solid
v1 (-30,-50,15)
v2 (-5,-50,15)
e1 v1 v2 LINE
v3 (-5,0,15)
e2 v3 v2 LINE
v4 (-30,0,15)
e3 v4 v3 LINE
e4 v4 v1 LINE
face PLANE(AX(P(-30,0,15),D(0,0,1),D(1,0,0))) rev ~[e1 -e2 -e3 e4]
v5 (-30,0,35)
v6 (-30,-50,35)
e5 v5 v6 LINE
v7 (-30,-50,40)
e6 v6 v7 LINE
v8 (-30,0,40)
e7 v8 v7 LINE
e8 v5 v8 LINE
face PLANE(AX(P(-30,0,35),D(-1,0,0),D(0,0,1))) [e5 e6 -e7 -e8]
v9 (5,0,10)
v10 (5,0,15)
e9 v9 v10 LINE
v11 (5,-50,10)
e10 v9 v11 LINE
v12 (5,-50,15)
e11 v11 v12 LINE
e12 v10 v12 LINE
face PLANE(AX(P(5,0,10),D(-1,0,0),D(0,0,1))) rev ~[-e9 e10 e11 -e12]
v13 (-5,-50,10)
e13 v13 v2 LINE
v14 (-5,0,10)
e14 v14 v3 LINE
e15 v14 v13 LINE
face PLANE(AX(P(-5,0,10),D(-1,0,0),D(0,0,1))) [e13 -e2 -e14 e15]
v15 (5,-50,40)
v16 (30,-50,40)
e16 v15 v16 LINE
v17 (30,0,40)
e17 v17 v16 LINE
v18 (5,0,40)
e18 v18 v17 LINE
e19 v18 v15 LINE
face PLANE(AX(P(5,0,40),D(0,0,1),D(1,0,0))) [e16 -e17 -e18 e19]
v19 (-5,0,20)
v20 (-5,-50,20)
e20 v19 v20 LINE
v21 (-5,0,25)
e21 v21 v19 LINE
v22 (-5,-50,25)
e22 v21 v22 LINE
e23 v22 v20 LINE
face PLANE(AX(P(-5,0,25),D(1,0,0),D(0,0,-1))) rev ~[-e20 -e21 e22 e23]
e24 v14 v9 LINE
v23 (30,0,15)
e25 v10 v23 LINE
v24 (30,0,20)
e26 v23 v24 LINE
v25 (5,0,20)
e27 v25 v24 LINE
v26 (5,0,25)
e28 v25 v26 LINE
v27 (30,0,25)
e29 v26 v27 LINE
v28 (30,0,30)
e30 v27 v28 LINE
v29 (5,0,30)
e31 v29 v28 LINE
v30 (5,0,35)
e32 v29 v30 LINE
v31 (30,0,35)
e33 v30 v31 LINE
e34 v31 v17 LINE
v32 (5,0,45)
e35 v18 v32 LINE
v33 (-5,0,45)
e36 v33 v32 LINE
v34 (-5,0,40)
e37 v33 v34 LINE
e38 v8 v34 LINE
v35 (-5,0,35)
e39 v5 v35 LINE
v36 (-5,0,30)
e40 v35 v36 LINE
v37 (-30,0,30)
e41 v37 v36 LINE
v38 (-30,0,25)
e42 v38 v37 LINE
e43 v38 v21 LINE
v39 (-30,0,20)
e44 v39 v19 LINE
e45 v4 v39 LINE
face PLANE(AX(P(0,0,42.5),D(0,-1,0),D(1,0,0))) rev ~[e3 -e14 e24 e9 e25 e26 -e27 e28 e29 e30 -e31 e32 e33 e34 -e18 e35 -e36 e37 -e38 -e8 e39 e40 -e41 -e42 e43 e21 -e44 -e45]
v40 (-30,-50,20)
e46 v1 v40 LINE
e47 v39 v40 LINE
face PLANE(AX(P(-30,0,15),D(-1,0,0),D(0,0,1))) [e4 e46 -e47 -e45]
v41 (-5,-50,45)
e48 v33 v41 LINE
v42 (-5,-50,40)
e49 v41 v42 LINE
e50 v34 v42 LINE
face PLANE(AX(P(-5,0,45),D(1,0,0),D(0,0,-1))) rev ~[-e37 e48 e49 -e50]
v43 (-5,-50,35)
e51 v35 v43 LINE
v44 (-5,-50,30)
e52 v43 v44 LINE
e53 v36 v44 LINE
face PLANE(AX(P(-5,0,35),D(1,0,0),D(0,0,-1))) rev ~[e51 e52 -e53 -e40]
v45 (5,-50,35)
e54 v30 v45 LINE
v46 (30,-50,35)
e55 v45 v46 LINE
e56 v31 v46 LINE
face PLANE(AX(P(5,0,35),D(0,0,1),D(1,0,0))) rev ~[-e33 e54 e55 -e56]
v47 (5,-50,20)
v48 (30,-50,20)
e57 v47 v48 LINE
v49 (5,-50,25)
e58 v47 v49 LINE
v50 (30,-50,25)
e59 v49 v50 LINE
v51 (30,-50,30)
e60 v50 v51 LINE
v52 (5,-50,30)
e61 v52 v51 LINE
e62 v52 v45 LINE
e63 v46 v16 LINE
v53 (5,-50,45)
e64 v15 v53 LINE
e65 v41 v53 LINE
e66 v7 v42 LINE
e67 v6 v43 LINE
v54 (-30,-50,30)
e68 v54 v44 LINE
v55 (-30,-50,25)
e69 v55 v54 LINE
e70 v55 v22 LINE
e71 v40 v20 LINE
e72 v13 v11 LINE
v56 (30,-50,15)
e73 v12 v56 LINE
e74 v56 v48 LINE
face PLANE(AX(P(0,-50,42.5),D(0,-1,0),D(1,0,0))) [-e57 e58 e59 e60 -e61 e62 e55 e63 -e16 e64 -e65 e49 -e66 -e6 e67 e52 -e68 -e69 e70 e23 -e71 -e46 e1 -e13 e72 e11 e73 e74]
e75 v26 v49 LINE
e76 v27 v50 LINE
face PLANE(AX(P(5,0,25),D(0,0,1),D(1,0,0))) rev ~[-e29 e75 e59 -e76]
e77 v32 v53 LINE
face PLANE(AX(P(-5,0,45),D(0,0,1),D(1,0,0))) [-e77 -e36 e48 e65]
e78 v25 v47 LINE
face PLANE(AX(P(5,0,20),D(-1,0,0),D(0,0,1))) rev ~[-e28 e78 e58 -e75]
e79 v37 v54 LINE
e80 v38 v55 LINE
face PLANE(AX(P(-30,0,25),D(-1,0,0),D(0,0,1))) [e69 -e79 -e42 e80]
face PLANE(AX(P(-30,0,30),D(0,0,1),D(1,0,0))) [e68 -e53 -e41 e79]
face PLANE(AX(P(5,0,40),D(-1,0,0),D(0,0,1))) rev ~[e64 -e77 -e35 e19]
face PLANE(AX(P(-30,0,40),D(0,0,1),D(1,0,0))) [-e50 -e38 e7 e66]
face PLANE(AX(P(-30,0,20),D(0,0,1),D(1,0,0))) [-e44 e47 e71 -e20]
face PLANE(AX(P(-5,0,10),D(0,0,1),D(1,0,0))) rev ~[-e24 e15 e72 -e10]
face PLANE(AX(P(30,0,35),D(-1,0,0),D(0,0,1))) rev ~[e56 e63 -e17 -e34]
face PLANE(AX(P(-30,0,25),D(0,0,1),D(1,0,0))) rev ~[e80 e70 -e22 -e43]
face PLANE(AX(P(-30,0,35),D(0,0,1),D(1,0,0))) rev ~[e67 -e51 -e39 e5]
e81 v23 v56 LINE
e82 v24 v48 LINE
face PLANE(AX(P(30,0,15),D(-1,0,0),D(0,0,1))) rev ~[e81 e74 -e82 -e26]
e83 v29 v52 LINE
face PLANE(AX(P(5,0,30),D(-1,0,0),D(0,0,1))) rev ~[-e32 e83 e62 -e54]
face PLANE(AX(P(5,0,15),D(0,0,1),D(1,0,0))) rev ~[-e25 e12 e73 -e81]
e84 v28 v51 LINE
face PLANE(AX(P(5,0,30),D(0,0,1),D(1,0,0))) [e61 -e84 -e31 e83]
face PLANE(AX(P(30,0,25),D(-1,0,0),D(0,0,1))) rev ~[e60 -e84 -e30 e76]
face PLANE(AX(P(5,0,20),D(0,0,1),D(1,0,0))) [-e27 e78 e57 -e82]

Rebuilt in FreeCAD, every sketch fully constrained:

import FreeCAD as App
import Part
import Sketcher
from FreeCAD import Vector
Q = App.Units.Quantity

doc = App.newDocument("Part")
body = doc.addObject("PartDesign::Body", "Body")

sketch1 = doc.addObject("Sketcher::SketchObject", "Sketch")
body.addObject(sketch1)
sketch1.AttachmentSupport = (doc.XZ_Plane, [""])
sketch1.MapMode = "FlatFace"
sketch1.addGeometry([
    Part.LineSegment(Vector(-5, 45, 0), Vector(-5, 40, 0)),
    Part.LineSegment(Vector(-5, 40, 0), Vector(-30, 40, 0)),
    Part.LineSegment(Vector(-30, 40, 0), Vector(-30, 35, 0)),
    Part.LineSegment(Vector(-30, 35, 0), Vector(-5, 35, 0)),
    Part.LineSegment(Vector(-5, 35, 0), Vector(-5, 30, 0)),
    Part.LineSegment(Vector(-5, 30, 0), Vector(-30, 30, 0)),
    Part.LineSegment(Vector(-30, 30, 0), Vector(-30, 25, 0)),
    Part.LineSegment(Vector(-30, 25, 0), Vector(-5, 25, 0)),
    Part.LineSegment(Vector(-5, 25, 0), Vector(-5, 20, 0)),
    Part.LineSegment(Vector(-5, 20, 0), Vector(-30, 20, 0)),
    Part.LineSegment(Vector(-30, 20, 0), Vector(-30, 15, 0)),
    Part.LineSegment(Vector(-30, 15, 0), Vector(-5, 15, 0)),
    Part.LineSegment(Vector(-5, 15, 0), Vector(-5, 10, 0)),
    Part.LineSegment(Vector(-5, 10, 0), Vector(5, 10, 0)),
    Part.LineSegment(Vector(5, 10, 0), Vector(5, 15, 0)),
    Part.LineSegment(Vector(5, 15, 0), Vector(30, 15, 0)),
    Part.LineSegment(Vector(30, 15, 0), Vector(30, 20, 0)),
    Part.LineSegment(Vector(30, 20, 0), Vector(5, 20, 0)),
    Part.LineSegment(Vector(5, 20, 0), Vector(5, 25, 0)),
    Part.LineSegment(Vector(5, 25, 0), Vector(30, 25, 0)),
    Part.LineSegment(Vector(30, 25, 0), Vector(30, 30, 0)),
    Part.LineSegment(Vector(30, 30, 0), Vector(5, 30, 0)),
    Part.LineSegment(Vector(5, 30, 0), Vector(5, 35, 0)),
    Part.LineSegment(Vector(5, 35, 0), Vector(30, 35, 0)),
    Part.LineSegment(Vector(30, 35, 0), Vector(30, 40, 0)),
    Part.LineSegment(Vector(30, 40, 0), Vector(5, 40, 0)),
    Part.LineSegment(Vector(5, 40, 0), Vector(5, 45, 0)),
    Part.LineSegment(Vector(5, 45, 0), Vector(-5, 45, 0)),
], False)
sketch1.addConstraint([
    Sketcher.Constraint("Coincident", 0, 2, 1, 1),
    Sketcher.Constraint("Coincident", 1, 2, 2, 1),
    Sketcher.Constraint("Coincident", 2, 2, 3, 1),
    Sketcher.Constraint("Coincident", 3, 2, 4, 1),
    Sketcher.Constraint("Coincident", 4, 2, 5, 1),
    Sketcher.Constraint("Coincident", 5, 2, 6, 1),
    Sketcher.Constraint("Coincident", 6, 2, 7, 1),
    Sketcher.Constraint("Coincident", 7, 2, 8, 1),
    Sketcher.Constraint("Coincident", 8, 2, 9, 1),
    Sketcher.Constraint("Coincident", 9, 2, 10, 1),
    Sketcher.Constraint("Coincident", 10, 2, 11, 1),
    Sketcher.Constraint("Coincident", 11, 2, 12, 1),
    Sketcher.Constraint("Coincident", 12, 2, 13, 1),
    Sketcher.Constraint("Coincident", 13, 2, 14, 1),
    Sketcher.Constraint("Coincident", 14, 2, 15, 1),
    Sketcher.Constraint("Coincident", 15, 2, 16, 1),
    Sketcher.Constraint("Coincident", 16, 2, 17, 1),
    Sketcher.Constraint("Coincident", 17, 2, 18, 1),
    Sketcher.Constraint("Coincident", 18, 2, 19, 1),
    Sketcher.Constraint("Coincident", 19, 2, 20, 1),
    Sketcher.Constraint("Coincident", 20, 2, 21, 1),
    Sketcher.Constraint("Coincident", 21, 2, 22, 1),
    Sketcher.Constraint("Coincident", 22, 2, 23, 1),
    Sketcher.Constraint("Coincident", 23, 2, 24, 1),
    Sketcher.Constraint("Coincident", 24, 2, 25, 1),
    Sketcher.Constraint("Coincident", 25, 2, 26, 1),
    Sketcher.Constraint("Coincident", 26, 2, 27, 1),
    Sketcher.Constraint("Coincident", 27, 2, 0, 1),
    Sketcher.Constraint("Vertical", 0),
    Sketcher.Constraint("Horizontal", 1),
    Sketcher.Constraint("Vertical", 2),
    Sketcher.Constraint("Horizontal", 3),
    Sketcher.Constraint("Vertical", 4),
    Sketcher.Constraint("Horizontal", 5),
    Sketcher.Constraint("Vertical", 6),
    Sketcher.Constraint("Horizontal", 7),
    Sketcher.Constraint("Vertical", 8),
    Sketcher.Constraint("Horizontal", 9),
    Sketcher.Constraint("Vertical", 10),
    Sketcher.Constraint("Horizontal", 11),
    Sketcher.Constraint("Vertical", 12),
    Sketcher.Constraint("Horizontal", 13),
    Sketcher.Constraint("Vertical", 14),
    Sketcher.Constraint("Horizontal", 15),
    Sketcher.Constraint("Vertical", 16),
    Sketcher.Constraint("Horizontal", 17),
    Sketcher.Constraint("Vertical", 18),
    Sketcher.Constraint("Horizontal", 19),
    Sketcher.Constraint("Vertical", 20),
    Sketcher.Constraint("Horizontal", 21),
    Sketcher.Constraint("Vertical", 22),
    Sketcher.Constraint("Horizontal", 23),
    Sketcher.Constraint("Vertical", 24),
    Sketcher.Constraint("Horizontal", 25),
    Sketcher.Constraint("Vertical", 26),
    Sketcher.Constraint("Horizontal", 27),
    Sketcher.Constraint("Symmetric", 11, 2, 14, 2, -2),
    Sketcher.Constraint("Symmetric", 9, 2, 16, 2, -2),
    Sketcher.Constraint("Symmetric", 7, 2, 18, 2, -2),
    Sketcher.Constraint("Symmetric", 5, 2, 20, 2, -2),
    Sketcher.Constraint("Symmetric", 3, 2, 22, 2, -2),
    Sketcher.Constraint("Symmetric", 1, 2, 24, 2, -2),
    Sketcher.Constraint("Vertical", 0, 2, 3, 2),
    Sketcher.Constraint("Vertical", 2, 2, 5, 2),
    Sketcher.Constraint("Vertical", 4, 2, 7, 2),
    Sketcher.Constraint("Vertical", 6, 2, 9, 2),
    Sketcher.Constraint("Vertical", 8, 2, 11, 2),
    Sketcher.Constraint("Vertical", 22, 2, 25, 2),
    Sketcher.Constraint("Equal", 0, 2),
    Sketcher.Constraint("Equal", 2, 4),
    Sketcher.Constraint("Equal", 4, 6),
    Sketcher.Constraint("Equal", 6, 8),
    Sketcher.Constraint("Equal", 8, 10),
    Sketcher.Constraint("Equal", 10, 12),
    Sketcher.Constraint("DistanceX", 1, 2, 1, 1, Q("25 mm")),
    Sketcher.Constraint("DistanceX", 13, 1, 13, 2, Q("10 mm")),
    Sketcher.Constraint("DistanceY", 0, 2, 0, 1, Q("5 mm")),
    Sketcher.Constraint("DistanceY", -1, 1, 0, 2, Q("40 mm")),
])
pad1 = doc.addObject("PartDesign::Pad", "Pad")
body.addObject(pad1)
pad1.Profile = sketch1
pad1.Length = 50

doc.recompute()
